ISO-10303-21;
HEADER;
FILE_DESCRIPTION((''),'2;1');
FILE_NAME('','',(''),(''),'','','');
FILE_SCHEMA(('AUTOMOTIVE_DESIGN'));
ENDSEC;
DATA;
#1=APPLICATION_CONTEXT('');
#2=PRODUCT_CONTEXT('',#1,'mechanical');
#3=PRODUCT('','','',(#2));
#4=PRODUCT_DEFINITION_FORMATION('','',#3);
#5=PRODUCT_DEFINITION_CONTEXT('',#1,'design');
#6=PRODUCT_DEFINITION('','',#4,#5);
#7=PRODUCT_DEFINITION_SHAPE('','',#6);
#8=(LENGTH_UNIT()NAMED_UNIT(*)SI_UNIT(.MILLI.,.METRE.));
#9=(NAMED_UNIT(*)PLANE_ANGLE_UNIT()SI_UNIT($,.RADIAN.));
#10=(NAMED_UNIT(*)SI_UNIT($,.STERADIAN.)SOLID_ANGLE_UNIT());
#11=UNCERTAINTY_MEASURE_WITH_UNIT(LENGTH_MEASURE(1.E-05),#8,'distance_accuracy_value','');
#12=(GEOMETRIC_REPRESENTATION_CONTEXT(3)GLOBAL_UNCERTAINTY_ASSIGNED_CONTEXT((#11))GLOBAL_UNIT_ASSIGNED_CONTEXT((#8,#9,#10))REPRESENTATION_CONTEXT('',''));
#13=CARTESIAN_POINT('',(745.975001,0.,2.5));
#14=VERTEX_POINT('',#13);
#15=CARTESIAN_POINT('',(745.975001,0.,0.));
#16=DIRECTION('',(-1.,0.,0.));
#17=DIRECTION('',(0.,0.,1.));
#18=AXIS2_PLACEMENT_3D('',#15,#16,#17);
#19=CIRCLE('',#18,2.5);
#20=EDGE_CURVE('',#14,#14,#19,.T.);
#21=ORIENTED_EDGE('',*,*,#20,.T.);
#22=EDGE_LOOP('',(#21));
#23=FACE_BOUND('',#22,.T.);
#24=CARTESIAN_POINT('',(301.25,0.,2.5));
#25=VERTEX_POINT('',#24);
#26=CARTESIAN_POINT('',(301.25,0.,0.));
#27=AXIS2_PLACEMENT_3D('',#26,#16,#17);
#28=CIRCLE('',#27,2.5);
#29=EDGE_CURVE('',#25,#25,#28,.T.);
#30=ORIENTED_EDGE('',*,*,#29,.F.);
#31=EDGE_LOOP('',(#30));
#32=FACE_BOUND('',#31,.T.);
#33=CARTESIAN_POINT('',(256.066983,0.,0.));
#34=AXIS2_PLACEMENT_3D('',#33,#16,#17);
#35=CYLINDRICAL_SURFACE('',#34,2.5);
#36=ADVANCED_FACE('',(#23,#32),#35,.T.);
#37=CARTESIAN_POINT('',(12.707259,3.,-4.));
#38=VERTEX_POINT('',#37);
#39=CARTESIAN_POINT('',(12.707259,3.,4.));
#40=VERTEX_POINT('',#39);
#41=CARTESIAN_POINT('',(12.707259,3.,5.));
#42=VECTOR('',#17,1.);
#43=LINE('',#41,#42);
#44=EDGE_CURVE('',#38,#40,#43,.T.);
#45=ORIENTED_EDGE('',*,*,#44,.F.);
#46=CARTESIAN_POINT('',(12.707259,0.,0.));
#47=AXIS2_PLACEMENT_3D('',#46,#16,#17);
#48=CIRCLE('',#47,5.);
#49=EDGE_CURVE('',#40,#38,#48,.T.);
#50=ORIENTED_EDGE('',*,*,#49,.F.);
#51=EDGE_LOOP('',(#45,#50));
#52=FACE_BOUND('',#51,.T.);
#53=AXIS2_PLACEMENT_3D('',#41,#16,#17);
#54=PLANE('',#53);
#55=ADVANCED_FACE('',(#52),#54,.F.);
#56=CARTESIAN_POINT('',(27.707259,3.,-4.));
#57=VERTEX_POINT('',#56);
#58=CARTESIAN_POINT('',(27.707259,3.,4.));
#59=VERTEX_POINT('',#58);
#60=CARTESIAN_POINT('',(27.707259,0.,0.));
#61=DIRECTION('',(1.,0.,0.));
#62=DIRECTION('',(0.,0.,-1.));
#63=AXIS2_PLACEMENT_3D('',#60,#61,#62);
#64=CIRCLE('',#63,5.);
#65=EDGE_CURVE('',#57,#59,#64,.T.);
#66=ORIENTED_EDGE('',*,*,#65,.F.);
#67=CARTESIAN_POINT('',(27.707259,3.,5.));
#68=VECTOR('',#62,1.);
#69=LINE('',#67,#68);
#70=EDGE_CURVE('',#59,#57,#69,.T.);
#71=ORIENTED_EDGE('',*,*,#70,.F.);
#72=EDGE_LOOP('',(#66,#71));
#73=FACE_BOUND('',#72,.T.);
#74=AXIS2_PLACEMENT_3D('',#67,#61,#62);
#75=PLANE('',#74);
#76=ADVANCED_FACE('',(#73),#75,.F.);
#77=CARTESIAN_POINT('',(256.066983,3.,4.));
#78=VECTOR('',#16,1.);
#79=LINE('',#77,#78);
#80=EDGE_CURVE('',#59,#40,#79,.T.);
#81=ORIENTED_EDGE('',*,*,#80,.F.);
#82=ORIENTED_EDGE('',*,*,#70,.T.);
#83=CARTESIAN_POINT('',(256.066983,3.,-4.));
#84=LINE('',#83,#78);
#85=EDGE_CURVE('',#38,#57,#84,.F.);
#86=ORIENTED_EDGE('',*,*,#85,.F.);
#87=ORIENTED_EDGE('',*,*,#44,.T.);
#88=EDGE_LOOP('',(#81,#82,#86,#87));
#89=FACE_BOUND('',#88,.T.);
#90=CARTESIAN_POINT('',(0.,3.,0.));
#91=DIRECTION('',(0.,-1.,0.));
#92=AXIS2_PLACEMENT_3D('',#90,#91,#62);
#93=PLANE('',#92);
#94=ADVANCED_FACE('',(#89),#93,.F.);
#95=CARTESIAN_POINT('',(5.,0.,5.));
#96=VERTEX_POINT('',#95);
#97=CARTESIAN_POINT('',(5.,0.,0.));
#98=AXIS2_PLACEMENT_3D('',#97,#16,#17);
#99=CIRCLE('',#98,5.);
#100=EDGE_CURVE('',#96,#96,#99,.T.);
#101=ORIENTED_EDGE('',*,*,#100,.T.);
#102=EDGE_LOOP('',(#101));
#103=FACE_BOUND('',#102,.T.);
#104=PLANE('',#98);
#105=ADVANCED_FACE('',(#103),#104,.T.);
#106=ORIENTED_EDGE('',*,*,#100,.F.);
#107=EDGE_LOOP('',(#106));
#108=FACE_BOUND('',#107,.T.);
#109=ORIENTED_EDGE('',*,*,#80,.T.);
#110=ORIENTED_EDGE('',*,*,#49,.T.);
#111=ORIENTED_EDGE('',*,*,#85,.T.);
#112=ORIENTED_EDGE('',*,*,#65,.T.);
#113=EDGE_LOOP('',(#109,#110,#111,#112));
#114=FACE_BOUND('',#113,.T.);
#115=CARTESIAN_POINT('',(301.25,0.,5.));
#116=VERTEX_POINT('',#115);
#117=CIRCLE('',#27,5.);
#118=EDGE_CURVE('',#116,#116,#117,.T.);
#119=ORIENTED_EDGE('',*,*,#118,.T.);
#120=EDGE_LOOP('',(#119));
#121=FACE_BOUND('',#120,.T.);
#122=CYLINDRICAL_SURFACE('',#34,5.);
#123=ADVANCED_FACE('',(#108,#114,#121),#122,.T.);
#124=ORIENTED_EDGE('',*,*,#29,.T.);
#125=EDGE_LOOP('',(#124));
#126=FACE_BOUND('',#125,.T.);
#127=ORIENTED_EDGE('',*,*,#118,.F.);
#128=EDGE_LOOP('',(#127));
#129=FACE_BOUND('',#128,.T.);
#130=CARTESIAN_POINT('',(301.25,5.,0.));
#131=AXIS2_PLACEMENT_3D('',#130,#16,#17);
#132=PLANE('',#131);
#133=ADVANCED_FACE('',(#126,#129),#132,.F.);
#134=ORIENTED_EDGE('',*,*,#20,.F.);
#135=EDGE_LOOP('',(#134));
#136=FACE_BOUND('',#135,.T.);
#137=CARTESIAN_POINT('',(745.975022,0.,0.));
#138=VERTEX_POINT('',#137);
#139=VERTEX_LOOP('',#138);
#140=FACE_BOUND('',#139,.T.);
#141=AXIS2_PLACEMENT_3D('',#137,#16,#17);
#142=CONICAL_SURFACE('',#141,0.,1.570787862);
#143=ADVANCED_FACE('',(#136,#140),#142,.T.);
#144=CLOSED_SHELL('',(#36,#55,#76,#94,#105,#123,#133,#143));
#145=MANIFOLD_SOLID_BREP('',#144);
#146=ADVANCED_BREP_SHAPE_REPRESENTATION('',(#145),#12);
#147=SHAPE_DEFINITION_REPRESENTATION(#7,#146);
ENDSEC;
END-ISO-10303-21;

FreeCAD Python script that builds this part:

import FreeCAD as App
import Part
import Sketcher


def add_polygon(sketch, points):
    """Adds a closed chain of lines whose ends are joined by coincident constraints."""
    first, n = sketch.GeometryCount, len(points)
    for a, b in zip(points, points[1:] + points[:1]):
        sketch.addGeometry(Part.LineSegment(App.Vector(*a, 0), App.Vector(*b, 0)), False)
    for i in range(n):
        sketch.addConstraint(Sketcher.Constraint("Coincident", first + i, 2, first + (i + 1) % n, 1))

doc = App.newDocument("Part")
params = doc.addObject("Spreadsheet::Sheet", "Params")
for row, (alias, value) in enumerate([
    ("sketch1_height", "5 mm"),
    ("sketch1_height2", "2.5 mm"),
    ("sketch1_width", "301.25 mm"),
    ("revolution_angle", "360 deg"),
    ("sketch2_diameter", "10 mm"),
    ("pocket1_length", "5 mm"),
    ("sketch3_width", "15 mm"),
    ("sketch3_height", "10 mm"),
    ("pocket2_length", "16 mm"),
], start=1):
    params.set(f"A{row}", alias)
    params.set(f"B{row}", "=" + value)
    params.setAlias(f"B{row}", alias)

body = doc.addObject("PartDesign::Body", "Body")

sketch1 = body.newObject("Sketcher::SketchObject", "Sketch")
sketch1.AttachmentSupport = (doc.getObject("XY_Plane"), [""])
sketch1.MapMode = "FlatFace"
add_polygon(sketch1, [(301.2, 5), (0, 5), (0, 0), (746, 0), (746, 2.5), (301.2, 2.5)])
sketch1.addConstraint([
    Sketcher.Constraint("Horizontal", 0),
    Sketcher.Constraint("Vertical", 1),
    Sketcher.Constraint("Horizontal", 2),
    Sketcher.Constraint("Horizontal", 4),
    Sketcher.Constraint("Vertical", 5),
    Sketcher.Constraint("Coincident", 1, 2, -1, 1),
    Sketcher.Constraint("DistanceY", 1, 2, 1, 1, 5.0),
    Sketcher.Constraint("DistanceY", 5, 1, 5, 2, 2.5),
    Sketcher.Constraint("DistanceX", 0, 2, 0, 1, 301.25),
    Sketcher.Constraint("DistanceX", 4, 2, 4, 1, 444.725001),
    Sketcher.Constraint("DistanceX", 2, 1, 2, 2, 745.975022),
])
sketch1.setExpression("Constraints[12]", "Params.sketch1_height")
sketch1.setExpression("Constraints[13]", "Params.sketch1_height2")
sketch1.setExpression("Constraints[14]", "Params.sketch1_width")
revolution = body.newObject("PartDesign::Revolution", "Revolution")
revolution.Profile = sketch1
revolution.ReferenceAxis = (sketch1, ["H_Axis"])
revolution.setExpression("Angle", "Params.revolution_angle")

sketch2 = body.newObject("Sketcher::SketchObject", "Sketch001")
sketch2.AttachmentSupport = (doc.getObject("YZ_Plane"), [""])
sketch2.MapMode = "FlatFace"
sketch2.addGeometry(Part.Circle(App.Vector(0, 0, 0), App.Vector(0, 0, 1), 5), False)
sketch2.addConstraint([
    Sketcher.Constraint("Coincident", 0, 3, -1, 1),
    Sketcher.Constraint("Diameter", 0, 10.0),
])
sketch2.setExpression("Constraints[1]", "Params.sketch2_diameter")
pocket1 = body.newObject("PartDesign::Pocket", "Pocket")
pocket1.Profile = sketch2
pocket1.setExpression("Length", "Params.pocket1_length")
pocket1.Reversed = True

sketch3 = body.newObject("Sketcher::SketchObject", "Sketch002")
sketch3.AttachmentSupport = (doc.getObject("XZ_Plane"), [""])
sketch3.MapMode = "FlatFace"
sketch3.AttachmentOffset = App.Placement(App.Vector(0, 0, -19), App.Rotation())
add_polygon(sketch3, [(13, -5), (13, 5), (28, 5), (28, -5)])
sketch3.addConstraint([
    Sketcher.Constraint("Vertical", 0),
    Sketcher.Constraint("Horizontal", 1),
    Sketcher.Constraint("Vertical", 2),
    Sketcher.Constraint("Horizontal", 3),
    Sketcher.Constraint("DistanceX", 1, 1, 1, 2, 15.0),
    Sketcher.Constraint("DistanceY", 0, 1, 0, 2, 10.0),
    Sketcher.Constraint("DistanceY", -1, 1, 0, 2, 5.0),
    Sketcher.Constraint("DistanceX", -1, 1, 0, 2, 12.707259),
])
sketch3.setExpression("Constraints[8]", "Params.sketch3_width")
sketch3.setExpression("Constraints[9]", "Params.sketch3_height")
pocket2 = body.newObject("PartDesign::Pocket", "Pocket001")
pocket2.Profile = sketch3
pocket2.setExpression("Length", "Params.pocket2_length")
pocket2.Reversed = True

doc.recompute()
